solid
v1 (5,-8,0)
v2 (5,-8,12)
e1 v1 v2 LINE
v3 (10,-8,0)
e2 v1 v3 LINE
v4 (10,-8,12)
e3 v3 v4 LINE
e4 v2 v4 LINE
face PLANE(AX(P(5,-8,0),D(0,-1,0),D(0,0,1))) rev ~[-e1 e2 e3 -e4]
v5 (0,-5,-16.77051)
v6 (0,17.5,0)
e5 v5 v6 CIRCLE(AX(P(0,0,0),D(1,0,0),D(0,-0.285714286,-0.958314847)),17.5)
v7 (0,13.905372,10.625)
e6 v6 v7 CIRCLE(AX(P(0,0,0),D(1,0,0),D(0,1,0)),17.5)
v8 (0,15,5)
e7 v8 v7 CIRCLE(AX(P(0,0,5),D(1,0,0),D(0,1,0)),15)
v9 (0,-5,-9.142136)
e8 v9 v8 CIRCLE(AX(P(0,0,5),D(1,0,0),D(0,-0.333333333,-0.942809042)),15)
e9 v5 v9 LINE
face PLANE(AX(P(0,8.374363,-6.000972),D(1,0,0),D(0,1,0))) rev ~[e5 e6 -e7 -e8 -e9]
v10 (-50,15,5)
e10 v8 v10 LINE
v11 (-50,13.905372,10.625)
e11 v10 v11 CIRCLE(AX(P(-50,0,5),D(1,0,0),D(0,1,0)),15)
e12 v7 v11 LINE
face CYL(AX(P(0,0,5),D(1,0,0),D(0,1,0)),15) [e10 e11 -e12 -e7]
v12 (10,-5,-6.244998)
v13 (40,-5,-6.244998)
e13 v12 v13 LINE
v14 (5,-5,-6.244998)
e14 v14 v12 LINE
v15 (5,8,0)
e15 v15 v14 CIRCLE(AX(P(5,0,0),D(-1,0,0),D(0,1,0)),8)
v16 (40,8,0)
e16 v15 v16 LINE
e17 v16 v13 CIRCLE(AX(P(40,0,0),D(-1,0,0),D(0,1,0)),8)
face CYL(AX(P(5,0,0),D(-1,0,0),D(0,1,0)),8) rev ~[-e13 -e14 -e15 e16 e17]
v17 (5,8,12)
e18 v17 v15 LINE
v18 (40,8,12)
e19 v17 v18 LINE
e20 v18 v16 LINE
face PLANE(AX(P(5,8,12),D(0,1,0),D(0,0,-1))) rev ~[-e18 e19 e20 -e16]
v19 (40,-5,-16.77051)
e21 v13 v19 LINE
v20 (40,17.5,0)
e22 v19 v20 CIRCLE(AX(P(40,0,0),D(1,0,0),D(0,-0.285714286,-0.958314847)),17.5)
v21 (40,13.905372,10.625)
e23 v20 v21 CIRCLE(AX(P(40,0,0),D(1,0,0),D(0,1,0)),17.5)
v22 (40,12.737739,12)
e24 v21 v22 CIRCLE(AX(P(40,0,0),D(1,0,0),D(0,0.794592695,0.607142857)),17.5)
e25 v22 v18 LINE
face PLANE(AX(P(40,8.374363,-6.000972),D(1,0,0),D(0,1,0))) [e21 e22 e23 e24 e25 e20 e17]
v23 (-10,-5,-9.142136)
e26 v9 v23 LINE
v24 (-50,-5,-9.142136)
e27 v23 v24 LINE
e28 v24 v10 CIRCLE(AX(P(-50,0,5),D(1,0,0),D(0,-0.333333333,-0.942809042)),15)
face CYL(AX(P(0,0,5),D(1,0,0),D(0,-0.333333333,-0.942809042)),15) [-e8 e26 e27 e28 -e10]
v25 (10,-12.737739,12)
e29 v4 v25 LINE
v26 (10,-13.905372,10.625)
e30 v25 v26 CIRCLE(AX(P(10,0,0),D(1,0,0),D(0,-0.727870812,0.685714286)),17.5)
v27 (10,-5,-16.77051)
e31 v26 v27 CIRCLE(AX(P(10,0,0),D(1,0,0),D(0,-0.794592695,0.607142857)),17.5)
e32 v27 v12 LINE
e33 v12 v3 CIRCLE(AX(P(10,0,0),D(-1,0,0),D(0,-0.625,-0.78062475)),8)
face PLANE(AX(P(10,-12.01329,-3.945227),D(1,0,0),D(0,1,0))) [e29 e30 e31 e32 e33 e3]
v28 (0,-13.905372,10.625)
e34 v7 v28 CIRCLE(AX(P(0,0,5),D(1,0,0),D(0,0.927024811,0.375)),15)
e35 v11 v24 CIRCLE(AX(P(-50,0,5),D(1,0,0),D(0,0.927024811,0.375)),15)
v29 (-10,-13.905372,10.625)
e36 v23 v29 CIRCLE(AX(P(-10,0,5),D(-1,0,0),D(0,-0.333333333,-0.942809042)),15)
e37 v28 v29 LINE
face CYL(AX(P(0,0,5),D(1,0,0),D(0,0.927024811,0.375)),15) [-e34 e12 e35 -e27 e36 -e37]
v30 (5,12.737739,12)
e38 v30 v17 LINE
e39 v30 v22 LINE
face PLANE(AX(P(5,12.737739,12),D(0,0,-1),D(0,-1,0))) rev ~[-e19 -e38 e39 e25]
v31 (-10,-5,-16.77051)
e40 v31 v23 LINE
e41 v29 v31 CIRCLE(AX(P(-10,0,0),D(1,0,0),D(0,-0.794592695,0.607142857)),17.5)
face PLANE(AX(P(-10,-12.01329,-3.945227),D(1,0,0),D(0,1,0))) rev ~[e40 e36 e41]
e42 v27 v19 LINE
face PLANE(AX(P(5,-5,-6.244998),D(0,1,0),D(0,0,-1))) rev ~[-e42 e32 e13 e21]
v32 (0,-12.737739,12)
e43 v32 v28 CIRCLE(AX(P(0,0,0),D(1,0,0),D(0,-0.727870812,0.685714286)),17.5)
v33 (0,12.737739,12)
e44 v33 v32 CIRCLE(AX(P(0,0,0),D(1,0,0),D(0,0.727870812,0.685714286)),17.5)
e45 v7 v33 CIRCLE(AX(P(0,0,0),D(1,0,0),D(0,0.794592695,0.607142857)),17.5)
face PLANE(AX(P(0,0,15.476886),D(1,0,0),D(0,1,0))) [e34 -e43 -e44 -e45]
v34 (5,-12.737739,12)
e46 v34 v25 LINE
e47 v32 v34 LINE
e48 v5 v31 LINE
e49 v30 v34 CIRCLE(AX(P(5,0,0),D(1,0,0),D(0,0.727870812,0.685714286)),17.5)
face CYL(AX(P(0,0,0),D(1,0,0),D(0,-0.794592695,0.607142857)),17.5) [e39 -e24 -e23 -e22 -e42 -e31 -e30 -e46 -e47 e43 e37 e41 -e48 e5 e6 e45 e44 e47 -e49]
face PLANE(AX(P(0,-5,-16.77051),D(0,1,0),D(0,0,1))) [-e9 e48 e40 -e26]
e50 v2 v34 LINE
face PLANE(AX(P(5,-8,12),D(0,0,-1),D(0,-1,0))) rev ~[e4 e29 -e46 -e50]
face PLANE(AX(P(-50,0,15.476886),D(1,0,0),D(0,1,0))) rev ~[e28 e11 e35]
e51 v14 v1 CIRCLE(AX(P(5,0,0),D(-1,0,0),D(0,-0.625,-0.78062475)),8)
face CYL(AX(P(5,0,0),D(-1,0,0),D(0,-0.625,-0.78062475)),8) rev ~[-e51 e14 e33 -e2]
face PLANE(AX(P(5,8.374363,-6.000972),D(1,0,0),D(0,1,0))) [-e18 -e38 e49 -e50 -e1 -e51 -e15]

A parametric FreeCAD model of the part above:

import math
import FreeCAD as App
import Part
import Sketcher

V = App.Vector
Q = App.Units.Quantity

doc = App.newDocument("Part")
body = doc.addObject("PartDesign::Body", "Body")

# Sketch on YZ plane
sketch1 = body.newObject("Sketcher::SketchObject", "Sketch")
sketch1.AttachmentSupport = (doc.getObject("YZ_Plane"), [""])
sketch1.MapMode = "FlatFace"
sketch1.addGeometry(Part.ArcOfCircle(Part.Circle(V(0, 0, 0), V(0, 0, 1), 17.5), math.radians(0), math.radians(37)), False)
sketch1.addGeometry(Part.ArcOfCircle(Part.Circle(V(0, 0, 0), V(0, 0, 1), 17.5), math.radians(37.38), math.radians(43.29)), False)
sketch1.addGeometry(Part.ArcOfCircle(Part.Circle(V(0, 0, 0), V(0, 0, 1), 17.5), math.radians(43), math.radians(137)), False)
sketch1.addGeometry(Part.ArcOfCircle(Part.Circle(V(0, 0, 0), V(0, 0, 1), 17.5), math.radians(136.71), math.radians(142.62)), False)
sketch1.addGeometry(Part.ArcOfCircle(Part.Circle(V(0, 0, 0), V(0, 0, 1), 17.5), math.radians(143), math.radians(253)), False)
sketch1.addGeometry(Part.ArcOfCircle(Part.Circle(V(0, 0, 0), V(0, 0, 1), 17.5), math.radians(-107), math.radians(0)), False)
sketch1.addConstraint(Sketcher.Constraint("Tangent", 0, 2, 1, 1))
sketch1.addConstraint(Sketcher.Constraint("Tangent", 1, 2, 2, 1))
sketch1.addConstraint(Sketcher.Constraint("Tangent", 2, 2, 3, 1))
sketch1.addConstraint(Sketcher.Constraint("Tangent", 3, 2, 4, 1))
sketch1.addConstraint(Sketcher.Constraint("Tangent", 4, 2, 5, 1))
sketch1.addConstraint(Sketcher.Constraint("Tangent", 5, 2, 0, 1))
sketch1.addConstraint(Sketcher.Constraint("Coincident", 0, 3, -1, 1))
sketch1.addConstraint(Sketcher.Constraint("Coincident", 2, 3, -1, 1))
sketch1.addConstraint(Sketcher.Constraint("Equal", 2, 3))
sketch1.addConstraint(Sketcher.Constraint("PointOnObject", 5, 2, -1))
sketch1.addConstraint(Sketcher.Constraint("Horizontal", 1, 2, 2, 2))
sketch1.addConstraint(Sketcher.Constraint("Horizontal", 0, 2, 3, 2))
sketch1.addConstraint(Sketcher.Constraint("Radius", 0, Q("17.5 mm")))
sketch1.addConstraint(Sketcher.Constraint("DistanceY", -1, 1, 1, 2, Q("12 mm")))
sketch1.addConstraint(Sketcher.Constraint("DistanceX", 4, 2, -1, 1, Q("5 mm")))
sketch1.addConstraint(Sketcher.Constraint("DistanceY", -1, 1, 0, 2, Q("10.625 mm")))
pad1 = body.newObject("PartDesign::Pad", "Pad")
pad1.Profile = sketch1
pad1.Length = 5

# Sketch on YZ plane
sketch2 = body.newObject("Sketcher::SketchObject", "Sketch001")
sketch2.AttachmentSupport = (doc.getObject("YZ_Plane"), [""])
sketch2.MapMode = "FlatFace"
sketch2.AttachmentOffset = App.Placement(V(0, 0, 5), App.Rotation())
sketch2.addGeometry(Part.ArcOfCircle(Part.Circle(V(0, 0, 0), V(0, 0, 1), 17.5), math.radians(-107), math.radians(0)), False)
sketch2.addGeometry(Part.ArcOfCircle(Part.Circle(V(0, 0, 0), V(0, 0, 1), 17.5), math.radians(0), math.radians(37)), False)
sketch2.addGeometry(Part.ArcOfCircle(Part.Circle(V(0, 0, 0), V(0, 0, 1), 17.5), math.radians(37.38), math.radians(43.29)), False)
sketch2.addGeometry(Part.LineSegment(V(12.7, 12, 0), V(8, 12, 0)), False)
sketch2.addGeometry(Part.LineSegment(V(8, 12, 0), V(8, 0, 0)), False)
sketch2.addGeometry(Part.ArcOfCircle(Part.Circle(V(0, 0, 0), V(0, 0, 1), 8), math.radians(-129), math.radians(0)), False)
sketch2.addGeometry(Part.LineSegment(V(-5, -6.2, 0), V(-5, -16.8, 0)), False)
sketch2.addConstraint(Sketcher.Constraint("Tangent", 0, 2, 1, 1))
sketch2.addConstraint(Sketcher.Constraint("Tangent", 1, 2, 2, 1))
sketch2.addConstraint(Sketcher.Constraint("Coincident", 2, 2, 3, 1))
sketch2.addConstraint(Sketcher.Constraint("Coincident", 3, 2, 4, 1))
sketch2.addConstraint(Sketcher.Constraint("Tangent", 4, 2, 5, 2))
sketch2.addConstraint(Sketcher.Constraint("Coincident", 5, 1, 6, 1))
sketch2.addConstraint(Sketcher.Constraint("Coincident", 6, 2, 0, 1))
sketch2.addConstraint(Sketcher.Constraint("Horizontal", 3))
sketch2.addConstraint(Sketcher.Constraint("Vertical", 4))
sketch2.addConstraint(Sketcher.Constraint("Vertical", 6))
sketch2.addConstraint(Sketcher.Constraint("Coincident", 0, 3, -1, 1))
sketch2.addConstraint(Sketcher.Constraint("Coincident", 2, 3, -1, 1))
sketch2.addConstraint(Sketcher.Constraint("Coincident", 5, 3, -1, 1))
sketch2.addConstraint(Sketcher.Constraint("PointOnObject", 0, 2, -1))
sketch2.addConstraint(Sketcher.Constraint("Radius", 5, Q("8 mm")))
sketch2.addConstraint(Sketcher.Constraint("Radius", 0, Q("17.5 mm")))
sketch2.addConstraint(Sketcher.Constraint("DistanceY", 4, 2, 4, 1, Q("12 mm")))
sketch2.addConstraint(Sketcher.Constraint("DistanceX", 5, 1, -1, 1, Q("5 mm")))
sketch2.addConstraint(Sketcher.Constraint("DistanceY", -1, 1, 1, 2, Q("10.625 mm")))
pad2 = body.newObject("PartDesign::Pad", "Pad001")
pad2.Profile = sketch2
pad2.Length = 35

# Sketch on YZ plane
sketch3 = body.newObject("Sketcher::SketchObject", "Sketch002")
sketch3.AttachmentSupport = (doc.getObject("YZ_Plane"), [""])
sketch3.MapMode = "FlatFace"
sketch3.AttachmentOffset = App.Placement(V(0, 0, 5), App.Rotation())
sketch3.addGeometry(Part.ArcOfCircle(Part.Circle(V(0, 0, 0), V(0, 0, 1), 17.5), math.radians(143), math.radians(253)), False)
sketch3.addGeometry(Part.LineSegment(V(-5, -16.8, 0), V(-5, -6.2, 0)), False)
sketch3.addGeometry(Part.ArcOfCircle(Part.Circle(V(0, 0, 0), V(0, 0, 1), 8), math.radians(180), math.radians(231)), False)
sketch3.addGeometry(Part.LineSegment(V(-8, 0, 0), V(-8, 12, 0)), False)
sketch3.addGeometry(Part.LineSegment(V(-8, 12, 0), V(-12.7, 12, 0)), False)
sketch3.addGeometry(Part.ArcOfCircle(Part.Circle(V(0, 0, 0), V(0, 0, 1), 17.5), math.radians(136.71), math.radians(142.62)), False)
sketch3.addConstraint(Sketcher.Constraint("Coincident", 0, 2, 1, 1))
sketch3.addConstraint(Sketcher.Constraint("Coincident", 1, 2, 2, 2))
sketch3.addConstraint(Sketcher.Constraint("Tangent", 2, 1, 3, 1))
sketch3.addConstraint(Sketcher.Constraint("Coincident", 3, 2, 4, 1))
sketch3.addConstraint(Sketcher.Constraint("Coincident", 4, 2, 5, 1))
sketch3.addConstraint(Sketcher.Constraint("Tangent", 5, 2, 0, 1))
sketch3.addConstraint(Sketcher.Constraint("Vertical", 1))
sketch3.addConstraint(Sketcher.Constraint("Vertical", 3))
sketch3.addConstraint(Sketcher.Constraint("Horizontal", 4))
sketch3.addConstraint(Sketcher.Constraint("Coincident", 0, 3, -1, 1))
sketch3.addConstraint(Sketcher.Constraint("Coincident", 2, 3, -1, 1))
sketch3.addConstraint(Sketcher.Constraint("Equal", 0, 5))
sketch3.addConstraint(Sketcher.Constraint("Radius", 2, Q("8 mm")))
sketch3.addConstraint(Sketcher.Constraint("Radius", 0, Q("17.5 mm")))
sketch3.addConstraint(Sketcher.Constraint("DistanceY", 3, 1, 3, 2, Q("12 mm")))
sketch3.addConstraint(Sketcher.Constraint("DistanceX", 0, 2, -1, 1, Q("5 mm")))
sketch3.addConstraint(Sketcher.Constraint("DistanceY", -1, 1, 5, 2, Q("10.625 mm")))
pad3 = body.newObject("PartDesign::Pad", "Pad002")
pad3.Profile = sketch3
pad3.Length = 5

# Sketch on YZ plane
sketch4 = body.newObject("Sketcher::SketchObject", "Sketch003")
sketch4.AttachmentSupport = (doc.getObject("YZ_Plane"), [""])
sketch4.MapMode = "FlatFace"
sketch4.addGeometry(Part.ArcOfCircle(Part.Circle(V(0, 5, 0), V(0, 0, 1), 15), math.radians(158), math.radians(251)), False)
sketch4.addGeometry(Part.ArcOfCircle(Part.Circle(V(0, 0, 0), V(0, 0, 1), 18), math.radians(143), math.radians(253)), False)
sketch4.addGeometry(Part.LineSegment(V(-5, -17, 0), V(-5, -9, 0)), False)
sketch4.addConstraint(Sketcher.Constraint("Coincident", 0, 1, 1, 1))
sketch4.addConstraint(Sketcher.Constraint("Coincident", 1, 2, 2, 1))
sketch4.addConstraint(Sketcher.Constraint("Coincident", 2, 2, 0, 2))
sketch4.addConstraint(Sketcher.Constraint("Vertical", 2))
sketch4.addConstraint(Sketcher.Constraint("Coincident", 1, 3, -1, 1))
sketch4.addConstraint(Sketcher.Constraint("PointOnObject", 0, 3, -2))
sketch4.addConstraint(Sketcher.Constraint("Radius", 0, Q("15 mm")))
sketch4.addConstraint(Sketcher.Constraint("Radius", 1, Q("17.5 mm")))
sketch4.addConstraint(Sketcher.Constraint("DistanceY", -1, 1, 0, 3, Q("5 mm")))
sketch4.addConstraint(Sketcher.Constraint("DistanceX", 1, 2, -1, 1, Q("5 mm")))
pad4 = body.newObject("PartDesign::Pad", "Pad003")
pad4.Profile = sketch4
pad4.Length = 10
pad4.Reversed = True

# Sketch on YZ plane
sketch5 = body.newObject("Sketcher::SketchObject", "Sketch004")
sketch5.AttachmentSupport = (doc.getObject("YZ_Plane"), [""])
sketch5.MapMode = "FlatFace"
sketch5.addGeometry(Part.ArcOfCircle(Part.Circle(V(0, 5, 0), V(0, 0, 1), 15), math.radians(22), math.radians(251)), False)
sketch5.addGeometry(Part.ArcOfCircle(Part.Circle(V(0, 5, 0), V(0, 0, 1), 15), math.radians(-109), math.radians(0)), False)
sketch5.addGeometry(Part.ArcOfCircle(Part.Circle(V(0, 5, 0), V(0, 0, 1), 15), math.radians(0), math.radians(22)), False)
sketch5.addConstraint(Sketcher.Constraint("Tangent", 0, 2, 1, 1))
sketch5.addConstraint(Sketcher.Constraint("Tangent", 1, 2, 2, 1))
sketch5.addConstraint(Sketcher.Constraint("Tangent", 2, 2, 0, 1))
sketch5.addConstraint(Sketcher.Constraint("PointOnObject", 0, 3, -2))
sketch5.addConstraint(Sketcher.Constraint("Horizontal", 2, 3, 1, 2))
sketch5.addConstraint(Sketcher.Constraint("Radius", 0, Q("15 mm")))
sketch5.addConstraint(Sketcher.Constraint("DistanceY", -1, 1, 0, 3, Q("5 mm")))
sketch5.addConstraint(Sketcher.Constraint("DistanceX", 0, 2, -1, 1, Q("5 mm")))
sketch5.addConstraint(Sketcher.Constraint("DistanceY", -1, 1, 2, 2, Q("10.625 mm")))
pad5 = body.newObject("PartDesign::Pad", "Pad004")
pad5.Profile = sketch5
pad5.Length = 50
pad5.Reversed = True

doc.recompute()
